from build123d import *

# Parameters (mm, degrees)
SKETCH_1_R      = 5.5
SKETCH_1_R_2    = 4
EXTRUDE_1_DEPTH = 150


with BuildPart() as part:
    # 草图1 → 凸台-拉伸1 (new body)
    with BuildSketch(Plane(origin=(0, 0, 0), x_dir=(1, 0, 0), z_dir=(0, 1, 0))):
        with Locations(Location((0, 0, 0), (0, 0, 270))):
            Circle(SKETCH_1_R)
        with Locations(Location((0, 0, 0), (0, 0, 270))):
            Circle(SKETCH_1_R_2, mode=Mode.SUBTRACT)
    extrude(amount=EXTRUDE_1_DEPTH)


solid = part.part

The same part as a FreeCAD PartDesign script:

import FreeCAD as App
import Part
import Sketcher
from FreeCAD import Vector
Q = App.Units.Quantity

doc = App.newDocument("Part")
body = doc.addObject("PartDesign::Body", "Body")

# Sketch on XZ plane
sketch1 = body.newObject("Sketcher::SketchObject", "Sketch")
sketch1.AttachmentSupport = (doc.getObject("XZ_Plane"), [""])
sketch1.MapMode = "FlatFace"
sketch1.addGeometry(Part.Circle(Vector(0, 0, 0), Vector(0, 0, 1), 5.5), False)
sketch1.addGeometry(Part.Circle(Vector(0, 0, 0), Vector(0, 0, 1), 4), False)
sketch1.addConstraint(Sketcher.Constraint("Coincident", 0, 3, -1, 1))
sketch1.addConstraint(Sketcher.Constraint("Coincident", 1, 3, -1, 1))
sketch1.addConstraint(Sketcher.Constraint("Diameter", 0, Q("11 mm")))
sketch1.addConstraint(Sketcher.Constraint("Diameter", 1, Q("8 mm")))
pad1 = body.newObject("PartDesign::Pad", "Pad")
pad1.Profile = sketch1
pad1.Length = 150
pad1.Reversed = True

doc.recompute()
